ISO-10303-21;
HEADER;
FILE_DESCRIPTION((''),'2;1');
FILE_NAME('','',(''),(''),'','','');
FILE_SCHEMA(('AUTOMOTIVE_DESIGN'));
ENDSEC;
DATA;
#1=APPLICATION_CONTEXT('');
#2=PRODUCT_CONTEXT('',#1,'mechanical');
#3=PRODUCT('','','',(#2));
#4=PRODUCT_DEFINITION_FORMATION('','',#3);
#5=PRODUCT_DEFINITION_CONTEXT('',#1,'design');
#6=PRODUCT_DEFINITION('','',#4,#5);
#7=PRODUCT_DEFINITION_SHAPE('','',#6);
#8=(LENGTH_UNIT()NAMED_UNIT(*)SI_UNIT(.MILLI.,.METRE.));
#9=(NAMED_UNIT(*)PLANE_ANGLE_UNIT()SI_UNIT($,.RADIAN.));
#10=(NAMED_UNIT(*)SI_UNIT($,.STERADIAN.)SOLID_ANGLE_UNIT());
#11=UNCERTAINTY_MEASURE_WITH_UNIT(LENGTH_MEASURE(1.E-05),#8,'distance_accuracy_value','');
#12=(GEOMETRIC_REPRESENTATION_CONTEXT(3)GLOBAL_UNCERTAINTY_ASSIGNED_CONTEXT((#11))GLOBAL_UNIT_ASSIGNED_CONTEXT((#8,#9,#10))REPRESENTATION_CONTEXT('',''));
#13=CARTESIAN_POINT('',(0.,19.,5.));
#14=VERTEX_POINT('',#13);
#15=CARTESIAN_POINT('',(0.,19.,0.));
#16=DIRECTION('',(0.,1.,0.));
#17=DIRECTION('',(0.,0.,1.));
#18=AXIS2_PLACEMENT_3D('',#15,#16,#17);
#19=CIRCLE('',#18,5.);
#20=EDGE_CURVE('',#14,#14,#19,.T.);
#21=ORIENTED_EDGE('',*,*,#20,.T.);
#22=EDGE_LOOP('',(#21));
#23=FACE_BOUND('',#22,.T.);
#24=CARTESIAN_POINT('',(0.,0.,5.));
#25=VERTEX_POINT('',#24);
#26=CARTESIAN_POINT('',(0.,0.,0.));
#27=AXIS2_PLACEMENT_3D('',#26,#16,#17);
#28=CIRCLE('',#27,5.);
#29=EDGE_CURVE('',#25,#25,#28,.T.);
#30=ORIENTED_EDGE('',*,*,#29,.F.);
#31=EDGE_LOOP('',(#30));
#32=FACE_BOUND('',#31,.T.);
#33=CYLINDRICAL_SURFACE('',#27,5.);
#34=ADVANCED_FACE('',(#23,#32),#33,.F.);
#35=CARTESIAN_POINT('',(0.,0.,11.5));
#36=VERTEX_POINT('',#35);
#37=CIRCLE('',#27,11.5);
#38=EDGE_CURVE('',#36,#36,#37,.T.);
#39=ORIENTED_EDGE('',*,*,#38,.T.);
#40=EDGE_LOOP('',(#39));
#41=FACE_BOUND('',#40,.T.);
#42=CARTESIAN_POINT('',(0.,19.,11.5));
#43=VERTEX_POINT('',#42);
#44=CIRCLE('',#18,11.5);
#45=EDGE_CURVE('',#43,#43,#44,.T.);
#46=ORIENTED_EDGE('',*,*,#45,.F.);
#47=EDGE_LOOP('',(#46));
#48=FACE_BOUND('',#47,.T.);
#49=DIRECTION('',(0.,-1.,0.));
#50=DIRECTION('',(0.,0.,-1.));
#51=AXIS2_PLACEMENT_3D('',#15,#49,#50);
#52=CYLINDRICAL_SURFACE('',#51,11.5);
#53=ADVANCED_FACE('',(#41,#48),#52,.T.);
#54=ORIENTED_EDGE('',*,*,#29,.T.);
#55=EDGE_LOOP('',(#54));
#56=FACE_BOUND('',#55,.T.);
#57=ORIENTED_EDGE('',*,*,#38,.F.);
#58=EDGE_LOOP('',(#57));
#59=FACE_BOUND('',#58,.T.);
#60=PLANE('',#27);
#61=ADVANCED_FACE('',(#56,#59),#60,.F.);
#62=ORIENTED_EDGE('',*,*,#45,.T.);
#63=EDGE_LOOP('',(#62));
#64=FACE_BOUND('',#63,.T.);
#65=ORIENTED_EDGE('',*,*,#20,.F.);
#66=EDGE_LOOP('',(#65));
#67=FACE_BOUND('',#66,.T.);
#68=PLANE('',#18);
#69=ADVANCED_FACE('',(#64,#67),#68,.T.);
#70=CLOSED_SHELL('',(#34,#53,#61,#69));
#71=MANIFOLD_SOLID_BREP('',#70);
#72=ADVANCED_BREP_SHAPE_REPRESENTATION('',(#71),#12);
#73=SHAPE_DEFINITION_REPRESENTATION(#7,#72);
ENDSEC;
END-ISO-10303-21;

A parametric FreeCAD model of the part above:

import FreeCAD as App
import Part
import Sketcher
Q = App.Units.Quantity

doc = App.newDocument("Part")
body = doc.addObject("PartDesign::Body", "Body")

# Sketch on XZ plane
sketch1 = body.newObject("Sketcher::SketchObject", "Sketch")
sketch1.AttachmentSupport = (doc.getObject("XZ_Plane"), [""])
sketch1.MapMode = "FlatFace"
sketch1.addGeometry(Part.Circle(App.Vector(0, 0, 0), App.Vector(0, 0, 1), 12), False)
sketch1.addConstraint(Sketcher.Constraint("Coincident", 0, 3, -1, 1))
sketch1.addConstraint(Sketcher.Constraint("Diameter", 0, Q("23 mm")))
pad1 = body.newObject("PartDesign::Pad", "Pad")
pad1.Profile = sketch1
pad1.Length = 19
pad1.Reversed = True

# Sketch on XZ plane
sketch2 = body.newObject("Sketcher::SketchObject", "Sketch001")
sketch2.AttachmentSupport = (doc.getObject("XZ_Plane"), [""])
sketch2.MapMode = "FlatFace"
sketch2.AttachmentOffset = App.Placement(App.Vector(0, 0, -19), App.Rotation())
sketch2.addGeometry(Part.Circle(App.Vector(0, 0, 0), App.Vector(0, 0, 1), 5), False)
sketch2.addConstraint(Sketcher.Constraint("Coincident", 0, 3, -1, 1))
sketch2.addConstraint(Sketcher.Constraint("Diameter", 0, Q("10 mm")))
pocket1 = body.newObject("PartDesign::Pocket", "Pocket")
pocket1.Profile = sketch2
pocket1.Type = "ThroughAll"
pocket1.Reversed = True

doc.recompute()
